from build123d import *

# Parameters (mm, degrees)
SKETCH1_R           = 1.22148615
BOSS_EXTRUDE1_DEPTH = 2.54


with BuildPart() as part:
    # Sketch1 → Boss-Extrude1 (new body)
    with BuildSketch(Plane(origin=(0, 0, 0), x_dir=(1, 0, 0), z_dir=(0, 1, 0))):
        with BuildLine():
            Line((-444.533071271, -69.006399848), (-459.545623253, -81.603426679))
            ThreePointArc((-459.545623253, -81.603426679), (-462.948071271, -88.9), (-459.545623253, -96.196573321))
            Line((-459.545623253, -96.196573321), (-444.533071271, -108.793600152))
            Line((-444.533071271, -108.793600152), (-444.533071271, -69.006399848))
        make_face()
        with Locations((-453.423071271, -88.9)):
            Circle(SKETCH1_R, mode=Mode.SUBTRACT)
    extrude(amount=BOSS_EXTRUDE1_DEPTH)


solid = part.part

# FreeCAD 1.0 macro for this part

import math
import FreeCAD as App
import Part
import Sketcher

V = App.Vector
Q = App.Units.Quantity

doc = App.newDocument("Part")
body = doc.addObject("PartDesign::Body", "Body")

sketch1 = body.newObject("Sketcher::SketchObject", "Sketch")
sketch1.AttachmentSupport = (doc.getObject("XZ_Plane"), [""])
sketch1.MapMode = "FlatFace"
sketch1.addGeometry([
    Part.LineSegment(V(-444.5, 69, 0), V(-459.5, 81.6, 0)),
    Part.ArcOfCircle(Part.Circle(V(-453.4, 88.9, 0), V(0, 0, 1), 9.5), math.radians(130), math.radians(230)),
    Part.LineSegment(V(-459.5, 96.2, 0), V(-444.5, 108.8, 0)),
    Part.LineSegment(V(-444.5, 108.8, 0), V(-444.5, 69, 0)),
    Part.Circle(V(-453.4, 88.9, 0), V(0, 0, 1), 1.2),
], False)
sketch1.addConstraint([
    Sketcher.Constraint("Tangent", 0, 2, 1, 2),
    Sketcher.Constraint("Tangent", 1, 1, 2, 1),
    Sketcher.Constraint("Coincident", 2, 2, 3, 1),
    Sketcher.Constraint("Coincident", 3, 2, 0, 1),
    Sketcher.Constraint("Vertical", 3),
    Sketcher.Constraint("Coincident", 4, 3, 1, 3),
    Sketcher.Constraint("Vertical", 0, 2, 1, 1),
    Sketcher.Constraint("Angle", 0, Q("140 deg")),
    Sketcher.Constraint("Radius", 1, Q("0.375 in")),
    Sketcher.Constraint("DistanceY", -1, 1, 1, 3, Q("3.5 in")),
    Sketcher.Constraint("DistanceX", 1, 3, 2, 2, Q("0.35 in")),
    Sketcher.Constraint("Diameter", 4, Q("2.442972 mm")),
    Sketcher.Constraint("DistanceX", 1, 3, -1, 1, Q("453.423071 mm")),
])
pad1 = body.newObject("PartDesign::Pad", "Pad")
pad1.Profile = sketch1
pad1.Length = Q("0.1 in")
pad1.Reversed = True

doc.recompute()
